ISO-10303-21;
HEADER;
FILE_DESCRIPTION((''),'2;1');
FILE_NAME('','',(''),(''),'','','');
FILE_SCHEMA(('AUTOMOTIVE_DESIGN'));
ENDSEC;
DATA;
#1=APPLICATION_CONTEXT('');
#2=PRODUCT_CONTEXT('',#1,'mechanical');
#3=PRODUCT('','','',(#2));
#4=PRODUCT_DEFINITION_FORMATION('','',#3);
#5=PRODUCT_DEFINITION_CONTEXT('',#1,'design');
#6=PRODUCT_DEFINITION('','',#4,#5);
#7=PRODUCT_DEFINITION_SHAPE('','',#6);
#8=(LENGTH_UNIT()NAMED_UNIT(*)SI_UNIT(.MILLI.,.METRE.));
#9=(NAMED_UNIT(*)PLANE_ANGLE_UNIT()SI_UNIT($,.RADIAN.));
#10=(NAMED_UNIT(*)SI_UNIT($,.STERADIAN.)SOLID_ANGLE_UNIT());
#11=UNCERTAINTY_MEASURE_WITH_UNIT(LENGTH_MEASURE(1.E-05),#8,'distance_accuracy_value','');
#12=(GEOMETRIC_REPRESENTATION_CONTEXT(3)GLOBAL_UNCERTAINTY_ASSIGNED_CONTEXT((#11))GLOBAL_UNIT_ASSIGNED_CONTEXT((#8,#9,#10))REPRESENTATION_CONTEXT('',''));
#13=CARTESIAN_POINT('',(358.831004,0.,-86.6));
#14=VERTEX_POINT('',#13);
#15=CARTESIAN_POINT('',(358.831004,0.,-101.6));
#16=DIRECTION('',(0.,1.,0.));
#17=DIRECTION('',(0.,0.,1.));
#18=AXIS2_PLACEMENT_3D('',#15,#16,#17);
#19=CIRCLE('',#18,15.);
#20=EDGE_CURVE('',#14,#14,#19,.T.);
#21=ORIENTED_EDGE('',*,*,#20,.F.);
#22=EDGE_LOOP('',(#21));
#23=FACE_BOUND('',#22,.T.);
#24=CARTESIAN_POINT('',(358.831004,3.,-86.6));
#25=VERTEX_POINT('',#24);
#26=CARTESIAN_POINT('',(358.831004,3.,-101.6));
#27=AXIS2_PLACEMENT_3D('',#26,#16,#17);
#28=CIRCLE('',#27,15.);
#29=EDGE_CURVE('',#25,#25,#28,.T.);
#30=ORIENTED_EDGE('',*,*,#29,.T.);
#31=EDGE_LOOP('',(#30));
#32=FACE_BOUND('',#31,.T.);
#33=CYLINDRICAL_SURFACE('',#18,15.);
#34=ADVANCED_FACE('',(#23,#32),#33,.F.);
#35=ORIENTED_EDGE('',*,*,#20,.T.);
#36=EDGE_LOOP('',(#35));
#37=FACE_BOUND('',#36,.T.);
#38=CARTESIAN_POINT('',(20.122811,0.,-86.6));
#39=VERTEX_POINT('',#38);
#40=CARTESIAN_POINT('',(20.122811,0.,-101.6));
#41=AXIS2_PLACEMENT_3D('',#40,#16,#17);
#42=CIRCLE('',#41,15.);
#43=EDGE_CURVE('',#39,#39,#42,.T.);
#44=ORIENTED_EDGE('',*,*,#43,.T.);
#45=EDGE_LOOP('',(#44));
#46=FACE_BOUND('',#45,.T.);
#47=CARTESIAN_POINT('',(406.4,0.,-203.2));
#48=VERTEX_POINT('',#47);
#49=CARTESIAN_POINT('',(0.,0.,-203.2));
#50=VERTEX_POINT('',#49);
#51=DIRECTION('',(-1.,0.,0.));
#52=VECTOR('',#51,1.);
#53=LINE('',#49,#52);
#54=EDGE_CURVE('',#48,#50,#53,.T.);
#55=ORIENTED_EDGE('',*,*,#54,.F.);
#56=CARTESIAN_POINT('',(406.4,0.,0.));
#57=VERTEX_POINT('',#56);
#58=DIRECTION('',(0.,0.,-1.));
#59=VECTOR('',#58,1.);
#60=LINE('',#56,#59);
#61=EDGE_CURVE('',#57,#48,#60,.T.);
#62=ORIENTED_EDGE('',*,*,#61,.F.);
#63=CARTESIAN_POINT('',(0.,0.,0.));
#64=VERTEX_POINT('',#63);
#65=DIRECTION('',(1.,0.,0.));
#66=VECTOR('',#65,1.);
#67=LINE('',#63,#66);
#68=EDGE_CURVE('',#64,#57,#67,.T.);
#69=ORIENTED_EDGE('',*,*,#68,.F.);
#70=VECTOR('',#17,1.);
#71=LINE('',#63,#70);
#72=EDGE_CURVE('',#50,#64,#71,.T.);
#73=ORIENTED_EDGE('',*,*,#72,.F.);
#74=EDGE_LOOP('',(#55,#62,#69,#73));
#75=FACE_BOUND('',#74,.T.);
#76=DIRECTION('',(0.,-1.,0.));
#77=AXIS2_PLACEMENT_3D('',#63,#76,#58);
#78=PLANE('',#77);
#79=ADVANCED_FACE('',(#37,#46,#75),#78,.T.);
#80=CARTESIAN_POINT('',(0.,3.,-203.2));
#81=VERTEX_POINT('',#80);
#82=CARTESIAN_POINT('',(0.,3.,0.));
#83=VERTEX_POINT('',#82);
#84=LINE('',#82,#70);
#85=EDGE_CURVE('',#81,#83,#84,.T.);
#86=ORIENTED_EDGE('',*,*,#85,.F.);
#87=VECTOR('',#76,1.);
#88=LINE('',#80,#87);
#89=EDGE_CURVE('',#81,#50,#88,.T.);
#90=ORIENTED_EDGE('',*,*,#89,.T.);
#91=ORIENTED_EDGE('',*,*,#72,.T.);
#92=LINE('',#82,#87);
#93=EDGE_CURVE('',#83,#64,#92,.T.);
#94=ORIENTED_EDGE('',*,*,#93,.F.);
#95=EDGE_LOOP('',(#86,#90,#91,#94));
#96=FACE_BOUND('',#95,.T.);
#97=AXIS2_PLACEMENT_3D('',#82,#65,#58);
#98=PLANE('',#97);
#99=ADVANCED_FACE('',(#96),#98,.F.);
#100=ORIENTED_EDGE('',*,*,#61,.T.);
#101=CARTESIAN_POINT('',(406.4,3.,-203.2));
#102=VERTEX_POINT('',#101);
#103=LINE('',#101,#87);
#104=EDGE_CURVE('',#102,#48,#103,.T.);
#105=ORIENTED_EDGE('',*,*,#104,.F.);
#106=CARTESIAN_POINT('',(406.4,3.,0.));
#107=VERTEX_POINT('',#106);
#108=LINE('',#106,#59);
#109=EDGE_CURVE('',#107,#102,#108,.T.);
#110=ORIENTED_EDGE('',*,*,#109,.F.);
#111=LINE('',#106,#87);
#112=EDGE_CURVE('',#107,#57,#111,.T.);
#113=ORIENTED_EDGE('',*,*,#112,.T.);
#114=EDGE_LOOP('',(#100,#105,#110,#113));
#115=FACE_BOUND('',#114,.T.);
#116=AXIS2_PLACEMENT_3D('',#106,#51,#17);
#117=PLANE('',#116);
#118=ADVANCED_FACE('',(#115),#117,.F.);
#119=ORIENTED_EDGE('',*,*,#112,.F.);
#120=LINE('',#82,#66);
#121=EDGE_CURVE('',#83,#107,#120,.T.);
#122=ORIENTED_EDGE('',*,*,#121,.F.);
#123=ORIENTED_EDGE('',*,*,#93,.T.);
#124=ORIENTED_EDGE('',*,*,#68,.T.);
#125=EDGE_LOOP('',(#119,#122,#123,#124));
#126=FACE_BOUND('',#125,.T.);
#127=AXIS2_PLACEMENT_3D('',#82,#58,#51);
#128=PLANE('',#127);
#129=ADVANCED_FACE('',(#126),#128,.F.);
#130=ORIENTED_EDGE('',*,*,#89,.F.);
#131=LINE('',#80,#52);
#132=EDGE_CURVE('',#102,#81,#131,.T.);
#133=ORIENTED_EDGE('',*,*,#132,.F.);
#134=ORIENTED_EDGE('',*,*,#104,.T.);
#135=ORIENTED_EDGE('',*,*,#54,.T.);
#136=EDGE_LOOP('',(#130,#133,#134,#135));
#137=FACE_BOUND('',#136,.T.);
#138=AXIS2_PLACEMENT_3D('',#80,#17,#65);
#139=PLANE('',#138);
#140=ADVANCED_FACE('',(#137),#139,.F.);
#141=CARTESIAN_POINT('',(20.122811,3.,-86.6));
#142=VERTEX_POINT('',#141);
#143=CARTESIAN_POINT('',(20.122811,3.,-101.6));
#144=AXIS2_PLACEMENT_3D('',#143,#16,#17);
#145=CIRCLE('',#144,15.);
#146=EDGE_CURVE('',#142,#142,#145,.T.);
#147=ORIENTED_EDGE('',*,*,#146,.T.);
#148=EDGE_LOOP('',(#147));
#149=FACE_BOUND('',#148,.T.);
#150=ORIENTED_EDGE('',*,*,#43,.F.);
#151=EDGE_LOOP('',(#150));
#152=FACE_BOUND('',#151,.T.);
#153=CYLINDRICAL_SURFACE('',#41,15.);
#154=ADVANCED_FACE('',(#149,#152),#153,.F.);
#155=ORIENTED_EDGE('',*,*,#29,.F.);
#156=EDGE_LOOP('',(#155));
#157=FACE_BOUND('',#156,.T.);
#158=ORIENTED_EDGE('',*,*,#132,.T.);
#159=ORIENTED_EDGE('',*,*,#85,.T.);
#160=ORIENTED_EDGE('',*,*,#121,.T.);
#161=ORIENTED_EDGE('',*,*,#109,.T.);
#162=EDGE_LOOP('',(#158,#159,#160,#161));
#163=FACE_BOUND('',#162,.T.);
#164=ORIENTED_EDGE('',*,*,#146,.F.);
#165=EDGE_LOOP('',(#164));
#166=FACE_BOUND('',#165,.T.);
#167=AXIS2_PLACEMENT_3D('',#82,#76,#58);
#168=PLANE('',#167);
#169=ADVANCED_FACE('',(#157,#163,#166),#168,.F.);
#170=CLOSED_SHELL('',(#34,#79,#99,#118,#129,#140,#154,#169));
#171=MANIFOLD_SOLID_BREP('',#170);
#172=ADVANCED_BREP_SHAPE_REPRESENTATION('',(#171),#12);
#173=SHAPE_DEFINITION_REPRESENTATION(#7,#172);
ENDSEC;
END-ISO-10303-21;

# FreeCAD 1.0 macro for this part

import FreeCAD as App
import Part
import Sketcher
Q = App.Units.Quantity

doc = App.newDocument("Part")
body = doc.addObject("PartDesign::Body", "Body")

sketch1 = doc.addObject("Sketcher::SketchObject", "Sketch")
body.addObject(sketch1)
sketch1.AttachmentSupport = (doc.XZ_Plane, [""])
sketch1.MapMode = "FlatFace"
sketch1.addGeometry([
    Part.LineSegment(App.Vector(0, -203, 0), App.Vector(0, 0, 0)),
    Part.LineSegment(App.Vector(0, 0, 0), App.Vector(406, 0, 0)),
    Part.LineSegment(App.Vector(406, 0, 0), App.Vector(406, -203, 0)),
    Part.LineSegment(App.Vector(406, -203, 0), App.Vector(0, -203, 0)),
], False)
sketch1.addConstraint([
    Sketcher.Constraint("Coincident", 0, 2, 1, 1),
    Sketcher.Constraint("Coincident", 1, 2, 2, 1),
    Sketcher.Constraint("Coincident", 2, 2, 3, 1),
    Sketcher.Constraint("Coincident", 3, 2, 0, 1),
    Sketcher.Constraint("Vertical", 0),
    Sketcher.Constraint("Horizontal", 1),
    Sketcher.Constraint("Vertical", 2),
    Sketcher.Constraint("Horizontal", 3),
    Sketcher.Constraint("Coincident", 0, 2, -1, 1),
    Sketcher.Constraint("DistanceX", 1, 1, 1, 2, Q("406.4 mm")),
    Sketcher.Constraint("DistanceY", 0, 1, 0, 2, Q("203.2 mm")),
])
pad1 = doc.addObject("PartDesign::Pad", "Pad")
body.addObject(pad1)
pad1.Profile = sketch1
pad1.Length = 3
pad1.Reversed = True

sketch2 = doc.addObject("Sketcher::SketchObject", "Sketch001")
body.addObject(sketch2)
sketch2.AttachmentSupport = (doc.XZ_Plane, [""])
sketch2.MapMode = "FlatFace"
sketch2.AttachmentOffset = App.Placement(App.Vector(0, 0, -3), App.Rotation())
sketch2.addGeometry([
    Part.Circle(App.Vector(20, -102, 0), App.Vector(0, 0, 1), 15),
    Part.Circle(App.Vector(359, -102, 0), App.Vector(0, 0, 1), 15),
], False)
sketch2.addConstraint([
    Sketcher.Constraint("Equal", 0, 1),
    Sketcher.Constraint("Horizontal", 0, 3, 1, 3),
    Sketcher.Constraint("Diameter", 0, Q("30 mm")),
    Sketcher.Constraint("DistanceY", 0, 3, -1, 1, Q("101.6 mm")),
    Sketcher.Constraint("DistanceX", -1, 1, 0, 3, Q("20.122811 mm")),
    Sketcher.Constraint("DistanceX", -1, 1, 1, 3, Q("358.831004 mm")),
])
pocket1 = doc.addObject("PartDesign::Pocket", "Pocket")
body.addObject(pocket1)
pocket1.Profile = sketch2
pocket1.Type = "ThroughAll"
pocket1.Reversed = True

doc.recompute()
